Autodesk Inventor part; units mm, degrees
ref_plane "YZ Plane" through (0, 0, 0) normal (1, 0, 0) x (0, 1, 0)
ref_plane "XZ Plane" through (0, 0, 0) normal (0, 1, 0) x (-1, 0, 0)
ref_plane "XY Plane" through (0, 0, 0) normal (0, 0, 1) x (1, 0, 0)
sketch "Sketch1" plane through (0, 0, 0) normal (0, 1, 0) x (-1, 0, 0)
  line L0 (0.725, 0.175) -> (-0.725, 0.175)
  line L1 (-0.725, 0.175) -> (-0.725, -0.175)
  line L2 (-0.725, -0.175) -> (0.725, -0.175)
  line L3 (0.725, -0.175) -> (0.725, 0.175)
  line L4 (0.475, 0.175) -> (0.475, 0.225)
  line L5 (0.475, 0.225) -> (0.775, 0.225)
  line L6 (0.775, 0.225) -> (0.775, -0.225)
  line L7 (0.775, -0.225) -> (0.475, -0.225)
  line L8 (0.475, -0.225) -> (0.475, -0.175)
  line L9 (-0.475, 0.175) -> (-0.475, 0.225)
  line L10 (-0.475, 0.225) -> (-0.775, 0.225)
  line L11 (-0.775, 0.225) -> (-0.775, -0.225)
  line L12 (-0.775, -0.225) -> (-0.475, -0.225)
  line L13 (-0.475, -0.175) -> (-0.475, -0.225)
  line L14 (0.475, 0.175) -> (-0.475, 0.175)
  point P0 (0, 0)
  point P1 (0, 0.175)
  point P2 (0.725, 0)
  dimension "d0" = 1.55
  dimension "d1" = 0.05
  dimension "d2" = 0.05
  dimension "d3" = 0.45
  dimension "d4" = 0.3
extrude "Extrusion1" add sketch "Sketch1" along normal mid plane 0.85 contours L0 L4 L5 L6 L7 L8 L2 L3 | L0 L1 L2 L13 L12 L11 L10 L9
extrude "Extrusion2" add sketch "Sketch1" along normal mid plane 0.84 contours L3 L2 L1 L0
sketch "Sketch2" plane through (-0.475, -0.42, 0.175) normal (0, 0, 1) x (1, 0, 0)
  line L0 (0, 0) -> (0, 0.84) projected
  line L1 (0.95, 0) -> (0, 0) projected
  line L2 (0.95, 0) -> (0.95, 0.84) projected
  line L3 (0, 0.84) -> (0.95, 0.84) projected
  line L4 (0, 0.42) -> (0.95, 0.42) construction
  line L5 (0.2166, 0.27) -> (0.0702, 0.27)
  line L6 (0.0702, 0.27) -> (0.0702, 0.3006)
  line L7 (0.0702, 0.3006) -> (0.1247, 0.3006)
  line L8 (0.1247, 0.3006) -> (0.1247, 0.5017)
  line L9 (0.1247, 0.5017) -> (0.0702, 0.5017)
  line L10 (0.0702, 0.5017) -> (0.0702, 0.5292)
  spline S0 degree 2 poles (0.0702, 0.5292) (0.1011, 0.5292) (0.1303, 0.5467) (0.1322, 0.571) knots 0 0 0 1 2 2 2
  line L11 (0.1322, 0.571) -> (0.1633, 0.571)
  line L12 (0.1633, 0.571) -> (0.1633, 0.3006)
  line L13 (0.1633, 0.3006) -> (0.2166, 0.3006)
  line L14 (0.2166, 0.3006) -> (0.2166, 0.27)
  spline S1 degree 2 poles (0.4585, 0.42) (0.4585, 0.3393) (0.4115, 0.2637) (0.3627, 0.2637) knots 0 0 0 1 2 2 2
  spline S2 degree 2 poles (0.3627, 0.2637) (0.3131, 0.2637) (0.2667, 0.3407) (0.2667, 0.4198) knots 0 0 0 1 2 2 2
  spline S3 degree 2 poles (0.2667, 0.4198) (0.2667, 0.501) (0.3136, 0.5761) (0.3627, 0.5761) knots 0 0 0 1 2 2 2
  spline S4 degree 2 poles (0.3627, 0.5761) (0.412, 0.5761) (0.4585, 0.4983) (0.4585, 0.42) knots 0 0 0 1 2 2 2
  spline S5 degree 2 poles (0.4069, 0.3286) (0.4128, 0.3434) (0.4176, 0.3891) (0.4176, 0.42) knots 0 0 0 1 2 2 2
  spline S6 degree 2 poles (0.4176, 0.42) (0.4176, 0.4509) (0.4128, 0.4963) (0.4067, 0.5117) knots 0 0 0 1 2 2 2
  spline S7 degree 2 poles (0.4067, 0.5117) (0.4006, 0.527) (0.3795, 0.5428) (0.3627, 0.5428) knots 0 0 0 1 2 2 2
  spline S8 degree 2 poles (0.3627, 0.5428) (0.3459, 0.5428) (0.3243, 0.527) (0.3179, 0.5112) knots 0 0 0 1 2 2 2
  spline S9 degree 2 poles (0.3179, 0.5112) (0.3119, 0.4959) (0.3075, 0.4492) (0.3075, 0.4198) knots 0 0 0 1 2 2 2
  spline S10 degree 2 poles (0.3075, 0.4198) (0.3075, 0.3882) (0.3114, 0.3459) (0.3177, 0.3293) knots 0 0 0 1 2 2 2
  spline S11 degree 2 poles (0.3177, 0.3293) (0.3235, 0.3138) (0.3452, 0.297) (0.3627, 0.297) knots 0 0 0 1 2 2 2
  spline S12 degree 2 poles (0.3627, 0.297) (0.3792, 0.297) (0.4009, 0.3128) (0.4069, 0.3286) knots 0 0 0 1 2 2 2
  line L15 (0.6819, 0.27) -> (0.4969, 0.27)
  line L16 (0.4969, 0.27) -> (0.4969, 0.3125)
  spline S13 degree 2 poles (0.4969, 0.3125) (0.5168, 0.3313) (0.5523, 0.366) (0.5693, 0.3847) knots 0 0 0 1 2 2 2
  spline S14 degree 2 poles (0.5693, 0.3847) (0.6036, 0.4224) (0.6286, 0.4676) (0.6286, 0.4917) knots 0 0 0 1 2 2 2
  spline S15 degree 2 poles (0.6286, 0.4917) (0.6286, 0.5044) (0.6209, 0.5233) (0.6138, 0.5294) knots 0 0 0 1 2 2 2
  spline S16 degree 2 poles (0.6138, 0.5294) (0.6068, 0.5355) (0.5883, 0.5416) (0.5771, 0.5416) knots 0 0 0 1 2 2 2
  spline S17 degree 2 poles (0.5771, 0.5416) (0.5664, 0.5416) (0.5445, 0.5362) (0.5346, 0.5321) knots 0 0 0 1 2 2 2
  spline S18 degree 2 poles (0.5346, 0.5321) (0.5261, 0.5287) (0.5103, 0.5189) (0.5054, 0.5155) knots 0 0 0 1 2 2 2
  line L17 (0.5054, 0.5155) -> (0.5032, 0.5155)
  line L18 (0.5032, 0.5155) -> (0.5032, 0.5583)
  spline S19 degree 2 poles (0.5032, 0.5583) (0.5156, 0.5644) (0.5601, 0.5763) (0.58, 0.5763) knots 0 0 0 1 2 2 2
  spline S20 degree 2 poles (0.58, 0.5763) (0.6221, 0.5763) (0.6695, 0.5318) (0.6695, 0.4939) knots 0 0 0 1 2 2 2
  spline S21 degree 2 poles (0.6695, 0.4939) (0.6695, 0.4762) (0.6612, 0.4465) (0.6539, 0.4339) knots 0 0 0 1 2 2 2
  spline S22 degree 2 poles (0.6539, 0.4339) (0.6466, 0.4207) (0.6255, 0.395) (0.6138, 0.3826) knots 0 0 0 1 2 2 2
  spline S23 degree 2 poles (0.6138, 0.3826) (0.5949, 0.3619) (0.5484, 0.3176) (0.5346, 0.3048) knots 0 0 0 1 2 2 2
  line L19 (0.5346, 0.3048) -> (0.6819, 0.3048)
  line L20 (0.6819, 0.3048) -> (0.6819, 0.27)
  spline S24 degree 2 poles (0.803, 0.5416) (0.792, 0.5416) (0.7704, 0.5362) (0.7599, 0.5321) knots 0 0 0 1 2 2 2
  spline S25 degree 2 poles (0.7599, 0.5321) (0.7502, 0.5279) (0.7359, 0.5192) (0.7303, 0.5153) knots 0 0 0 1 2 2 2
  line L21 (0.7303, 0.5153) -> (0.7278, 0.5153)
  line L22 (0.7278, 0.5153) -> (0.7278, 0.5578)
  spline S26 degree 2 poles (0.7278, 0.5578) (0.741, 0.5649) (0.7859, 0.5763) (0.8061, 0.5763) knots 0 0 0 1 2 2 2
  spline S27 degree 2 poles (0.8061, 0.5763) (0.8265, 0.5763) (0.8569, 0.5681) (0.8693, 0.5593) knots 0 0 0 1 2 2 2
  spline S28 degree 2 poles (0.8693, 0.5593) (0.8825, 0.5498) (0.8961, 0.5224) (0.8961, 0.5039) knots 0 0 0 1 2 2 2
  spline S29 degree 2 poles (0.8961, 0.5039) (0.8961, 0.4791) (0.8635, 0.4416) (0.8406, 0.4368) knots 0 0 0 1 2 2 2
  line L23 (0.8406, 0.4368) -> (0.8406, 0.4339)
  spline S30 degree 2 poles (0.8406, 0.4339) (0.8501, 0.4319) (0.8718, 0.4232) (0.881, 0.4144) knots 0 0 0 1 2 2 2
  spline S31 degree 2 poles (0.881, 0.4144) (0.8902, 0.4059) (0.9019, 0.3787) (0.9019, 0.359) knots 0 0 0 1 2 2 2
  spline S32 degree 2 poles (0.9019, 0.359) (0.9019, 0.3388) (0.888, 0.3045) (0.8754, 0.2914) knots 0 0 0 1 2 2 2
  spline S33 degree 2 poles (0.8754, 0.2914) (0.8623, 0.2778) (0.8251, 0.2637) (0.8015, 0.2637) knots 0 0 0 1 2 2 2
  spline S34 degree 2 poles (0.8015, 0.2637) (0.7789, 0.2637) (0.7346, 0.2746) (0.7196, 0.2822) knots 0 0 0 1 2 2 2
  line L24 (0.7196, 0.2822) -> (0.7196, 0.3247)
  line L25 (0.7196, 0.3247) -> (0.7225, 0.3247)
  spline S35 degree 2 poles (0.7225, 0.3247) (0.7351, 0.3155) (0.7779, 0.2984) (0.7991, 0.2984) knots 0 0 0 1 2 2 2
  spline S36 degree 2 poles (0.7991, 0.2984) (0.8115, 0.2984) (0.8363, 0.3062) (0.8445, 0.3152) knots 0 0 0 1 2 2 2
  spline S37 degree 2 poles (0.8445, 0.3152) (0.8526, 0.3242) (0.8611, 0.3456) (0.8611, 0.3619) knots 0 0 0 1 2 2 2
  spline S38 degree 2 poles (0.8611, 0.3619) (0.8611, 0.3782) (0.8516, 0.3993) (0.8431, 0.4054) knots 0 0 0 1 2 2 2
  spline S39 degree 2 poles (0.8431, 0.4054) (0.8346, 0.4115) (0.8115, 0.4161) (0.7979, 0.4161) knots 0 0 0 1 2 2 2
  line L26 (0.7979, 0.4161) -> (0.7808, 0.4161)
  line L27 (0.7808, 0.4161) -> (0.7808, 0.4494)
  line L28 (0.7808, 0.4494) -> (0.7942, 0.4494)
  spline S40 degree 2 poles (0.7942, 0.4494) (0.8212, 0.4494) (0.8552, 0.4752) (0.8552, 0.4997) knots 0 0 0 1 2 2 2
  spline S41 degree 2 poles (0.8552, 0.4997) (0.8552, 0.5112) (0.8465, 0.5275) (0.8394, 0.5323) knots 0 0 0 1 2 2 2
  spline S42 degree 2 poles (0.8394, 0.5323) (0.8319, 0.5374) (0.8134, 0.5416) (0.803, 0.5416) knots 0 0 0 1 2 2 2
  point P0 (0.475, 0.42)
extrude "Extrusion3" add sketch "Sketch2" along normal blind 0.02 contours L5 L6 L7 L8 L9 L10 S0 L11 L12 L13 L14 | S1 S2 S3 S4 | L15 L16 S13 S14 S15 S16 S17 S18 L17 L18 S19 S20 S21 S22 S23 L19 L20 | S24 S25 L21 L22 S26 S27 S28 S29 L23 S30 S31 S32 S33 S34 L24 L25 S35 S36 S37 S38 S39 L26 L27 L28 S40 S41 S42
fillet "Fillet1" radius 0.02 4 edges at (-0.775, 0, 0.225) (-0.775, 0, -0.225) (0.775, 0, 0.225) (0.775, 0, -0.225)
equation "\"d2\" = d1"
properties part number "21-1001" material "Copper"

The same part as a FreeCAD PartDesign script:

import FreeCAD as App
import Part
import Sketcher

V = App.Vector


def edges_at(feature, points):
    """Names of the edges that pass closest to the given points."""
    edges = feature.Shape.Edges
    near = lambda p: min(range(len(edges)), key=lambda i: edges[i].distToShape(Part.Vertex(*p))[0])
    return sorted({f"Edge{near(p) + 1}" for p in points})


def add_polygon(sketch, points):
    """Adds a closed chain of lines whose ends are joined by coincident constraints."""
    first, n = sketch.GeometryCount, len(points)
    for a, b in zip(points, points[1:] + points[:1]):
        sketch.addGeometry(Part.LineSegment(App.Vector(*a, 0), App.Vector(*b, 0)), False)
    for i in range(n):
        sketch.addConstraint(Sketcher.Constraint("Coincident", first + i, 2, first + (i + 1) % n, 1))

doc = App.newDocument("Part")
body = doc.addObject("PartDesign::Body", "Body")
body.AllowCompound = True

# Sketch on XZ plane
sketch1 = body.newObject("Sketcher::SketchObject", "Sketch")
sketch1.AttachmentSupport = (doc.getObject("XZ_Plane"), [""])
sketch1.MapMode = "FlatFace"
add_polygon(sketch1, [(-0.475, 0.175), (-0.725, 0.175), (-0.725, -0.175), (-0.475, -0.175), (-0.475, -0.225), (-0.775, -0.225), (-0.775, 0.225), (-0.475, 0.225)])  # lines 0-7
add_polygon(sketch1, [(0.725, 0.175), (0.475, 0.175), (0.475, 0.225), (0.775, 0.225), (0.775, -0.225), (0.475, -0.225), (0.475, -0.175), (0.725, -0.175)])  # lines 8-15
sketch1.addConstraint([
    Sketcher.Constraint("Horizontal", 0),
    Sketcher.Constraint("Vertical", 1),
    Sketcher.Constraint("Horizontal", 2),
    Sketcher.Constraint("Vertical", 3),
    Sketcher.Constraint("Horizontal", 4),
    Sketcher.Constraint("Vertical", 5),
    Sketcher.Constraint("Horizontal", 6),
    Sketcher.Constraint("Vertical", 7),
    Sketcher.Constraint("Horizontal", 8),
    Sketcher.Constraint("Vertical", 9),
    Sketcher.Constraint("Horizontal", 10),
    Sketcher.Constraint("Vertical", 11),
    Sketcher.Constraint("Horizontal", 12),
    Sketcher.Constraint("Vertical", 13),
    Sketcher.Constraint("Horizontal", 14),
    Sketcher.Constraint("Vertical", 15),
    Sketcher.Constraint("Symmetric", 2, 2, 8, 2, -1, 1),
    Sketcher.Constraint("Symmetric", 4, 2, 10, 2, -1, 1),
    Sketcher.Constraint("Symmetric", 6, 2, 12, 2, -1, 1),
    Sketcher.Constraint("Symmetric", 0, 2, 14, 2, -1, 1),
    Sketcher.Constraint("Symmetric", 7, 2, 8, 2, -2),
    Sketcher.Constraint("Horizontal", 6, 2, 9, 2),
    Sketcher.Constraint("DistanceX", 4, 2, 4, 1, 0.3),
    Sketcher.Constraint("DistanceY", 3, 2, 3, 1, 0.05),
    Sketcher.Constraint("DistanceY", 5, 1, 5, 2, 0.45),
    Sketcher.Constraint("DistanceX", 4, 2, 1, 2, 0.05),
    Sketcher.Constraint("DistanceX", 0, 2, 8, 2, 1.2),
])
pad1 = body.newObject("PartDesign::Pad", "Pad")
pad1.Profile = sketch1
pad1.Length = 0.85
pad1.Midplane = True

# Sketch on XZ plane
sketch2 = body.newObject("Sketcher::SketchObject", "Sketch001")
sketch2.AttachmentSupport = (doc.getObject("XZ_Plane"), [""])
sketch2.MapMode = "FlatFace"
add_polygon(sketch2, [(-0.725, -0.175), (-0.725, 0.175), (0.725, 0.175), (0.725, -0.175)])  # lines 0-3
sketch2.addConstraint([
    Sketcher.Constraint("Vertical", 0),
    Sketcher.Constraint("Horizontal", 1),
    Sketcher.Constraint("Vertical", 2),
    Sketcher.Constraint("Horizontal", 3),
    Sketcher.Constraint("Symmetric", 0, 2, 2, 2, -1, 1),
    Sketcher.Constraint("DistanceX", 1, 1, 1, 2, 1.45),
    Sketcher.Constraint("DistanceY", 0, 1, 0, 2, 0.35),
])
pad2 = body.newObject("PartDesign::Pad", "Pad001")
pad2.Profile = sketch2
pad2.Length = 0.84
pad2.Midplane = True

# Sketch on XY plane
sketch3 = body.newObject("Sketcher::SketchObject", "Sketch002")
sketch3.AttachmentSupport = (doc.getObject("XY_Plane"), [""])
sketch3.MapMode = "FlatFace"
sketch3.AttachmentOffset = App.Placement(V(0, 0, 0.175), App.Rotation())
sketch3.addGeometry([
    Part.LineSegment(V(-0.4048, -0.15, 0), V(-0.2584, -0.15, 0)),  # 0
    Part.LineSegment(V(-0.2584, -0.15, 0), V(-0.2584, -0.1194, 0)),  # 1
    Part.LineSegment(V(-0.2584, -0.1194, 0), V(-0.3117, -0.1194, 0)),  # 2
    Part.LineSegment(V(-0.3117, -0.1194, 0), V(-0.3117, 0.151, 0)),  # 3
    Part.LineSegment(V(-0.3117, 0.151, 0), V(-0.3428, 0.151, 0)),  # 4
    Part.BSplineCurve([V(-0.4048, 0.1092, 0), V(-0.3739, 0.1092, 0), V(-0.3447, 0.1267, 0), V(-0.3428, 0.151, 0)], [3, 1, 3], [0, 1, 2], False, 2, [1, 1, 1, 1], False),  # 5
    Part.LineSegment(V(-0.4048, 0.1092, 0), V(-0.4048, 0.0817, 0)),  # 6
    Part.LineSegment(V(-0.4048, 0.0817, 0), V(-0.3503, 0.0817, 0)),  # 7
    Part.LineSegment(V(-0.3503, 0.0817, 0), V(-0.3503, -0.1194, 0)),  # 8
    Part.LineSegment(V(-0.3503, -0.1194, 0), V(-0.4048, -0.1194, 0)),  # 9
    Part.LineSegment(V(-0.4048, -0.1194, 0), V(-0.4048, -0.15, 0)),  # 10
    Part.BSplineCurve([V(-0.0165, 0, 0), V(-0.0165, -0.0807, 0), V(-0.0635, -0.1563, 0), V(-0.1123, -0.1563, 0)], [3, 1, 3], [0, 1, 2], False, 2, [1, 1, 1, 1], False),  # 11
    Part.BSplineCurve([V(-0.1123, 0.1561, 0), V(-0.063, 0.1561, 0), V(-0.0165, 0.0783, 0), V(-0.0165, 0, 0)], [3, 1, 3], [0, 1, 2], False, 2, [1, 1, 1, 1], False),  # 12
    Part.BSplineCurve([V(-0.2083, -0.0002, 0), V(-0.2083, 0.081, 0), V(-0.1614, 0.1561, 0), V(-0.1123, 0.1561, 0)], [3, 1, 3], [0, 1, 2], False, 2, [1, 1, 1, 1], False),  # 13
    Part.BSplineCurve([V(-0.1123, -0.1563, 0), V(-0.1619, -0.1563, 0), V(-0.2083, -0.0793, 0), V(-0.2083, -0.0002, 0)], [3, 1, 3], [0, 1, 2], False, 2, [1, 1, 1, 1], False),  # 14
    Part.BSplineCurve([V(-0.0681, -0.0914, 0), V(-0.0622, -0.0766, 0), V(-0.0574, -0.0309, 0), V(-0.0574, 0, 0)], [3, 1, 3], [0, 1, 2], False, 2, [1, 1, 1, 1], False),  # 15
    Part.BSplineCurve([V(-0.1123, -0.123, 0), V(-0.0958, -0.123, 0), V(-0.0741, -0.1072, 0), V(-0.0681, -0.0914, 0)], [3, 1, 3], [0, 1, 2], False, 2, [1, 1, 1, 1], False),  # 16
    Part.BSplineCurve([V(-0.1573, -0.0907, 0), V(-0.1515, -0.1062, 0), V(-0.1298, -0.123, 0), V(-0.1123, -0.123, 0)], [3, 1, 3], [0, 1, 2], False, 2, [1, 1, 1, 1], False),  # 17
    Part.BSplineCurve([V(-0.1675, -0.0002, 0), V(-0.1675, -0.0318, 0), V(-0.1636, -0.0741, 0), V(-0.1573, -0.0907, 0)], [3, 1, 3], [0, 1, 2], False, 2, [1, 1, 1, 1], False),  # 18
    Part.BSplineCurve([V(-0.1571, 0.0912, 0), V(-0.1631, 0.0759, 0), V(-0.1675, 0.0292, 0), V(-0.1675, -0.0002, 0)], [3, 1, 3], [0, 1, 2], False, 2, [1, 1, 1, 1], False),  # 19
    Part.BSplineCurve([V(-0.1123, 0.1228, 0), V(-0.1291, 0.1228, 0), V(-0.1507, 0.107, 0), V(-0.1571, 0.0912, 0)], [3, 1, 3], [0, 1, 2], False, 2, [1, 1, 1, 1], False),  # 20
    Part.BSplineCurve([V(-0.0683, 0.0917, 0), V(-0.0744, 0.107, 0), V(-0.0955, 0.1228, 0), V(-0.1123, 0.1228, 0)], [3, 1, 3], [0, 1, 2], False, 2, [1, 1, 1, 1], False),  # 21
    Part.BSplineCurve([V(-0.0574, 0, 0), V(-0.0574, 0.0309, 0), V(-0.0622, 0.0763, 0), V(-0.0683, 0.0917, 0)], [3, 1, 3], [0, 1, 2], False, 2, [1, 1, 1, 1], False),  # 22
    Part.LineSegment(V(0.0219, -0.15, 0), V(0.2069, -0.15, 0)),  # 23
    Part.LineSegment(V(0.2069, -0.15, 0), V(0.2069, -0.1152, 0)),  # 24
    Part.LineSegment(V(0.2069, -0.1152, 0), V(0.0596, -0.1152, 0)),  # 25
    Part.BSplineCurve([V(0.1388, -0.0374, 0), V(0.1199, -0.0581, 0), V(0.0734, -0.1024, 0), V(0.0596, -0.1152, 0)], [3, 1, 3], [0, 1, 2], False, 2, [1, 1, 1, 1], False),  # 26
    Part.BSplineCurve([V(0.1789, 0.0139, 0), V(0.1716, 0.0007, 0), V(0.1505, -0.025, 0), V(0.1388, -0.0374, 0)], [3, 1, 3], [0, 1, 2], False, 2, [1, 1, 1, 1], False),  # 27
    Part.BSplineCurve([V(0.1945, 0.0739, 0), V(0.1945, 0.0562, 0), V(0.1862, 0.0265, 0), V(0.1789, 0.0139, 0)], [3, 1, 3], [0, 1, 2], False, 2, [1, 1, 1, 1], False),  # 28
    Part.BSplineCurve([V(0.105, 0.1563, 0), V(0.1471, 0.1563, 0), V(0.1945, 0.1118, 0), V(0.1945, 0.0739, 0)], [3, 1, 3], [0, 1, 2], False, 2, [1, 1, 1, 1], False),  # 29
    Part.BSplineCurve([V(0.0282, 0.1383, 0), V(0.0406, 0.1444, 0), V(0.0851, 0.1563, 0), V(0.105, 0.1563, 0)], [3, 1, 3], [0, 1, 2], False, 2, [1, 1, 1, 1], False),  # 30
    Part.LineSegment(V(0.0282, 0.1383, 0), V(0.0282, 0.0955, 0)),  # 31
    Part.LineSegment(V(0.0282, 0.0955, 0), V(0.0304, 0.0955, 0)),  # 32
    Part.BSplineCurve([V(0.0596, 0.1121, 0), V(0.0511, 0.1087, 0), V(0.0353, 0.0989, 0), V(0.0304, 0.0955, 0)], [3, 1, 3], [0, 1, 2], False, 2, [1, 1, 1, 1], False),  # 33
    Part.BSplineCurve([V(0.1021, 0.1216, 0), V(0.0914, 0.1216, 0), V(0.0695, 0.1162, 0), V(0.0596, 0.1121, 0)], [3, 1, 3], [0, 1, 2], False, 2, [1, 1, 1, 1], False),  # 34
    Part.BSplineCurve([V(0.1388, 0.1094, 0), V(0.1318, 0.1155, 0), V(0.1133, 0.1216, 0), V(0.1021, 0.1216, 0)], [3, 1, 3], [0, 1, 2], False, 2, [1, 1, 1, 1], False),  # 35
    Part.BSplineCurve([V(0.1536, 0.0717, 0), V(0.1536, 0.0844, 0), V(0.1459, 0.1033, 0), V(0.1388, 0.1094, 0)], [3, 1, 3], [0, 1, 2], False, 2, [1, 1, 1, 1], False),  # 36
    Part.BSplineCurve([V(0.0943, -0.0353, 0), V(0.1286, 0.0024, 0), V(0.1536, 0.0476, 0), V(0.1536, 0.0717, 0)], [3, 1, 3], [0, 1, 2], False, 2, [1, 1, 1, 1], False),  # 37
    Part.BSplineCurve([V(0.0219, -0.1075, 0), V(0.0418, -0.0887, 0), V(0.0773, -0.054, 0), V(0.0943, -0.0353, 0)], [3, 1, 3], [0, 1, 2], False, 2, [1, 1, 1, 1], False),  # 38
    Part.LineSegment(V(0.0219, -0.1075, 0), V(0.0219, -0.15, 0)),  # 39
    Part.BSplineCurve([V(0.328, 0.1216, 0), V(0.317, 0.1216, 0), V(0.2954, 0.1162, 0), V(0.2849, 0.1121, 0)], [3, 1, 3], [0, 1, 2], False, 2, [1, 1, 1, 1], False),  # 40
    Part.BSplineCurve([V(0.3644, 0.1123, 0), V(0.3569, 0.1174, 0), V(0.3384, 0.1216, 0), V(0.328, 0.1216, 0)], [3, 1, 3], [0, 1, 2], False, 2, [1, 1, 1, 1], False),  # 41
    Part.BSplineCurve([V(0.3802, 0.0797, 0), V(0.3802, 0.0912, 0), V(0.3715, 0.1075, 0), V(0.3644, 0.1123, 0)], [3, 1, 3], [0, 1, 2], False, 2, [1, 1, 1, 1], False),  # 42
    Part.BSplineCurve([V(0.3192, 0.0294, 0), V(0.3462, 0.0294, 0), V(0.3802, 0.0552, 0), V(0.3802, 0.0797, 0)], [3, 1, 3], [0, 1, 2], False, 2, [1, 1, 1, 1], False),  # 43
    Part.LineSegment(V(0.3192, 0.0294, 0), V(0.3058, 0.0294, 0)),  # 44
    Part.LineSegment(V(0.3058, 0.0294, 0), V(0.3058, -0.0039, 0)),  # 45
    Part.LineSegment(V(0.3058, -0.0039, 0), V(0.3229, -0.0039, 0)),  # 46
    Part.BSplineCurve([V(0.3681, -0.0146, 0), V(0.3596, -0.0085, 0), V(0.3365, -0.0039, 0), V(0.3229, -0.0039, 0)], [3, 1, 3], [0, 1, 2], False, 2, [1, 1, 1, 1], False),  # 47
    Part.BSplineCurve([V(0.3861, -0.0581, 0), V(0.3861, -0.0418, 0), V(0.3766, -0.0207, 0), V(0.3681, -0.0146, 0)], [3, 1, 3], [0, 1, 2], False, 2, [1, 1, 1, 1], False),  # 48
    Part.BSplineCurve([V(0.3695, -0.1048, 0), V(0.3776, -0.0958, 0), V(0.3861, -0.0744, 0), V(0.3861, -0.0581, 0)], [3, 1, 3], [0, 1, 2], False, 2, [1, 1, 1, 1], False),  # 49
    Part.BSplineCurve([V(0.3241, -0.1216, 0), V(0.3365, -0.1216, 0), V(0.3613, -0.1138, 0), V(0.3695, -0.1048, 0)], [3, 1, 3], [0, 1, 2], False, 2, [1, 1, 1, 1], False),  # 50
    Part.BSplineCurve([V(0.2475, -0.0953, 0), V(0.2601, -0.1045, 0), V(0.3029, -0.1216, 0), V(0.3241, -0.1216, 0)], [3, 1, 3], [0, 1, 2], False, 2, [1, 1, 1, 1], False),  # 51
    Part.LineSegment(V(0.2475, -0.0953, 0), V(0.2446, -0.0953, 0)),  # 52
    Part.LineSegment(V(0.2446, -0.0953, 0), V(0.2446, -0.1378, 0)),  # 53
    Part.BSplineCurve([V(0.3265, -0.1563, 0), V(0.3039, -0.1563, 0), V(0.2596, -0.1454, 0), V(0.2446, -0.1378, 0)], [3, 1, 3], [0, 1, 2], False, 2, [1, 1, 1, 1], False),  # 54
    Part.BSplineCurve([V(0.4004, -0.1286, 0), V(0.3873, -0.1422, 0), V(0.3501, -0.1563, 0), V(0.3265, -0.1563, 0)], [3, 1, 3], [0, 1, 2], False, 2, [1, 1, 1, 1], False),  # 55
    Part.BSplineCurve([V(0.4269, -0.061, 0), V(0.4269, -0.0812, 0), V(0.413, -0.1155, 0), V(0.4004, -0.1286, 0)], [3, 1, 3], [0, 1, 2], False, 2, [1, 1, 1, 1], False),  # 56
    Part.BSplineCurve([V(0.406, -0.0056, 0), V(0.4152, -0.0141, 0), V(0.4269, -0.0413, 0), V(0.4269, -0.061, 0)], [3, 1, 3], [0, 1, 2], False, 2, [1, 1, 1, 1], False),  # 57
    Part.BSplineCurve([V(0.3656, 0.0139, 0), V(0.3751, 0.0119, 0), V(0.3968, 0.0032, 0), V(0.406, -0.0056, 0)], [3, 1, 3], [0, 1, 2], False, 2, [1, 1, 1, 1], False),  # 58
    Part.LineSegment(V(0.3656, 0.0139, 0), V(0.3656, 0.0168, 0)),  # 59
    Part.BSplineCurve([V(0.4211, 0.0839, 0), V(0.4211, 0.0591, 0), V(0.3885, 0.0216, 0), V(0.3656, 0.0168, 0)], [3, 1, 3], [0, 1, 2], False, 2, [1, 1, 1, 1], False),  # 60
    Part.BSplineCurve([V(0.3943, 0.1393, 0), V(0.4075, 0.1298, 0), V(0.4211, 0.1024, 0), V(0.4211, 0.0839, 0)], [3, 1, 3], [0, 1, 2], False, 2, [1, 1, 1, 1], False),  # 61
    Part.BSplineCurve([V(0.3311, 0.1563, 0), V(0.3515, 0.1563, 0), V(0.3819, 0.1481, 0), V(0.3943, 0.1393, 0)], [3, 1, 3], [0, 1, 2], False, 2, [1, 1, 1, 1], False),  # 62
    Part.BSplineCurve([V(0.2528, 0.1378, 0), V(0.266, 0.1449, 0), V(0.3109, 0.1563, 0), V(0.3311, 0.1563, 0)], [3, 1, 3], [0, 1, 2], False, 2, [1, 1, 1, 1], False),  # 63
    Part.LineSegment(V(0.2528, 0.1378, 0), V(0.2528, 0.0953, 0)),  # 64
    Part.LineSegment(V(0.2528, 0.0953, 0), V(0.2553, 0.0953, 0)),  # 65
    Part.BSplineCurve([V(0.2849, 0.1121, 0), V(0.2752, 0.1079, 0), V(0.2609, 0.0992, 0), V(0.2553, 0.0953, 0)], [3, 1, 3], [0, 1, 2], False, 2, [1, 1, 1, 1], False),  # 66
], False)
sketch3.addConstraint([
    Sketcher.Constraint("Block", 5),
    Sketcher.Constraint("Block", 11),
    Sketcher.Constraint("Block", 12),
    Sketcher.Constraint("Block", 13),
    Sketcher.Constraint("Block", 14),
    Sketcher.Constraint("Block", 15),
    Sketcher.Constraint("Block", 16),
    Sketcher.Constraint("Block", 17),
    Sketcher.Constraint("Block", 18),
    Sketcher.Constraint("Block", 19),
    Sketcher.Constraint("Block", 20),
    Sketcher.Constraint("Block", 21),
    Sketcher.Constraint("Block", 22),
    Sketcher.Constraint("Block", 26),
    Sketcher.Constraint("Block", 27),
    Sketcher.Constraint("Block", 28),
    Sketcher.Constraint("Block", 29),
    Sketcher.Constraint("Block", 30),
    Sketcher.Constraint("Block", 33),
    Sketcher.Constraint("Block", 34),
    Sketcher.Constraint("Block", 35),
    Sketcher.Constraint("Block", 36),
    Sketcher.Constraint("Block", 37),
    Sketcher.Constraint("Block", 38),
    Sketcher.Constraint("Block", 40),
    Sketcher.Constraint("Block", 41),
    Sketcher.Constraint("Block", 42),
    Sketcher.Constraint("Block", 43),
    Sketcher.Constraint("Block", 47),
    Sketcher.Constraint("Block", 48),
    Sketcher.Constraint("Block", 49),
    Sketcher.Constraint("Block", 50),
    Sketcher.Constraint("Block", 51),
    Sketcher.Constraint("Block", 54),
    Sketcher.Constraint("Block", 55),
    Sketcher.Constraint("Block", 56),
    Sketcher.Constraint("Block", 57),
    Sketcher.Constraint("Block", 58),
    Sketcher.Constraint("Block", 60),
    Sketcher.Constraint("Block", 61),
    Sketcher.Constraint("Block", 62),
    Sketcher.Constraint("Block", 63),
    Sketcher.Constraint("Block", 66),
    Sketcher.Constraint("Coincident", 0, 2, 1, 1),
    Sketcher.Constraint("Coincident", 1, 2, 2, 1),
    Sketcher.Constraint("Coincident", 2, 2, 3, 1),
    Sketcher.Constraint("Coincident", 3, 2, 4, 1),
    Sketcher.Constraint("Coincident", 4, 2, 5, 2),
    Sketcher.Constraint("Coincident", 5, 1, 6, 1),
    Sketcher.Constraint("Coincident", 6, 2, 7, 1),
    Sketcher.Constraint("Coincident", 7, 2, 8, 1),
    Sketcher.Constraint("Coincident", 8, 2, 9, 1),
    Sketcher.Constraint("Coincident", 9, 2, 10, 1),
    Sketcher.Constraint("Coincident", 10, 2, 0, 1),
    Sketcher.Constraint("Coincident", 23, 2, 24, 1),
    Sketcher.Constraint("Coincident", 24, 2, 25, 1),
    Sketcher.Constraint("Coincident", 25, 2, 26, 2),
    Sketcher.Constraint("Coincident", 30, 1, 31, 1),
    Sketcher.Constraint("Coincident", 31, 2, 32, 1),
    Sketcher.Constraint("Coincident", 32, 2, 33, 2),
    Sketcher.Constraint("Coincident", 38, 1, 39, 1),
    Sketcher.Constraint("Coincident", 39, 2, 23, 1),
    Sketcher.Constraint("Coincident", 43, 1, 44, 1),
    Sketcher.Constraint("Coincident", 44, 2, 45, 1),
    Sketcher.Constraint("Coincident", 45, 2, 46, 1),
    Sketcher.Constraint("Coincident", 46, 2, 47, 2),
    Sketcher.Constraint("Coincident", 51, 1, 52, 1),
    Sketcher.Constraint("Coincident", 52, 2, 53, 1),
    Sketcher.Constraint("Coincident", 53, 2, 54, 2),
    Sketcher.Constraint("Coincident", 58, 1, 59, 1),
    Sketcher.Constraint("Coincident", 59, 2, 60, 2),
    Sketcher.Constraint("Coincident", 63, 1, 64, 1),
    Sketcher.Constraint("Coincident", 64, 2, 65, 1),
    Sketcher.Constraint("Coincident", 65, 2, 66, 2),
    Sketcher.Constraint("Horizontal", 0),
    Sketcher.Constraint("Vertical", 1),
    Sketcher.Constraint("Horizontal", 2),
    Sketcher.Constraint("Vertical", 3),
    Sketcher.Constraint("Horizontal", 4),
    Sketcher.Constraint("Vertical", 6),
    Sketcher.Constraint("Horizontal", 7),
    Sketcher.Constraint("Vertical", 8),
    Sketcher.Constraint("Horizontal", 9),
    Sketcher.Constraint("Vertical", 10),
    Sketcher.Constraint("Horizontal", 23),
    Sketcher.Constraint("Vertical", 24),
    Sketcher.Constraint("Horizontal", 25),
    Sketcher.Constraint("Vertical", 31),
    Sketcher.Constraint("Horizontal", 32),
    Sketcher.Constraint("Vertical", 39),
    Sketcher.Constraint("Horizontal", 44),
    Sketcher.Constraint("Vertical", 45),
    Sketcher.Constraint("Horizontal", 46),
    Sketcher.Constraint("Horizontal", 52),
    Sketcher.Constraint("Vertical", 53),
    Sketcher.Constraint("Vertical", 64),
    Sketcher.Constraint("Horizontal", 65),
    Sketcher.Constraint("DistanceX", 4, 2, 4, 1, 0.031),
    Sketcher.Constraint("DistanceX", 23, 1, 23, 2, 0.185),
    Sketcher.Constraint("DistanceX", 46, 1, 46, 2, 0.017),
    Sketcher.Constraint("DistanceY", 8, 2, 8, 1, 0.201),
    Sketcher.Constraint("DistanceY", 0, 2, -1, 1, 0.15),
    Sketcher.Constraint("DistanceY", 23, 2, -1, 1, 0.15),
    Sketcher.Constraint("DistanceX", 0, 1, 0, 2, 0.1464),
    Sketcher.Constraint("DistanceX", 2, 2, 2, 1, 0.0533),
    Sketcher.Constraint("DistanceX", 7, 1, 7, 2, 0.0545),
    Sketcher.Constraint("DistanceY", 1, 1, 1, 2, 0.0306),
    Sketcher.Constraint("DistanceY", 6, 2, 6, 1, 0.0275),
])
pad3 = body.newObject("PartDesign::Pad", "Pad002")
pad3.Profile = sketch3
pad3.Length = 0.02
doc.recompute()

fillet = body.newObject("PartDesign::Fillet", "Fillet")
fillet.Base = (pad3, edges_at(pad3, [
    (-0.775, 0, 0.225),
    (-0.775, 0, -0.225),
    (0.775, 0, 0.225),
    (0.775, 0, -0.225),
]))
fillet.Radius = 0.02

doc.recompute()
